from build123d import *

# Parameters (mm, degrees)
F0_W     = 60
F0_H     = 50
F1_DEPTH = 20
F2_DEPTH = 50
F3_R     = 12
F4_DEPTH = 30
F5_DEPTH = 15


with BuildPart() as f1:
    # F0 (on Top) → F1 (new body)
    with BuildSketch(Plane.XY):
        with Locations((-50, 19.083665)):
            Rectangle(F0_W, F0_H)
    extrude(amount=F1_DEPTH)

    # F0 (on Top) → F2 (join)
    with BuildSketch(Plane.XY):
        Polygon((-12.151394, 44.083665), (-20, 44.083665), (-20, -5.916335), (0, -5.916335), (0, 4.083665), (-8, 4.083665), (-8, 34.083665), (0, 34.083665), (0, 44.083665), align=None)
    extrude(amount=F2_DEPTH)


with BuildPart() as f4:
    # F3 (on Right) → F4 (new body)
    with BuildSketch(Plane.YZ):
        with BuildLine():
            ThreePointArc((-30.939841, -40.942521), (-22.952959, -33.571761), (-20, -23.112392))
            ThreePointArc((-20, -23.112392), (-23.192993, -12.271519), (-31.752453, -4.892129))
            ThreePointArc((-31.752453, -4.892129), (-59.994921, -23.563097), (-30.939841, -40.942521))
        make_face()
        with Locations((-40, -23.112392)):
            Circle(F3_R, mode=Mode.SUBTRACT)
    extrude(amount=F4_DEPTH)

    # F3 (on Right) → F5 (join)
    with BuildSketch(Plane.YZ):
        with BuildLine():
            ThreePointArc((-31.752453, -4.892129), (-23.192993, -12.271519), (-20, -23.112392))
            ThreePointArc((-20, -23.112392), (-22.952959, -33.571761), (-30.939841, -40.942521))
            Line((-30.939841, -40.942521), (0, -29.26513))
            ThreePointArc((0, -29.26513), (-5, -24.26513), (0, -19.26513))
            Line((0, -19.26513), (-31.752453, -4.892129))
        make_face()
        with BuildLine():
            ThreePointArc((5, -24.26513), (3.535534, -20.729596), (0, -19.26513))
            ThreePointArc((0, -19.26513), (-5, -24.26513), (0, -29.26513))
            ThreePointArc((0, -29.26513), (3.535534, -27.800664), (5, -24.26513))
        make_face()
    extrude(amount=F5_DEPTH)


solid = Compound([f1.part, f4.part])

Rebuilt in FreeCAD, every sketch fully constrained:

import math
import FreeCAD as App
import Part
import Sketcher
Q = App.Units.Quantity

doc = App.newDocument("Part")
body = doc.addObject("PartDesign::Body", "Body")

sketch1 = body.newObject("Sketcher::SketchObject", "Sketch")
sketch1.AttachmentSupport = (doc.getObject("XY_Plane"), [""])
sketch1.MapMode = "FlatFace"
sketch1.addGeometry(Part.LineSegment(App.Vector(-80, 44, 0), App.Vector(-80, -6, 0)), False)
sketch1.addGeometry(Part.LineSegment(App.Vector(-80, -6, 0), App.Vector(-20, -6, 0)), False)
sketch1.addGeometry(Part.LineSegment(App.Vector(-20, -6, 0), App.Vector(-20, 44, 0)), False)
sketch1.addGeometry(Part.LineSegment(App.Vector(-20, 44, 0), App.Vector(-80, 44, 0)), False)
sketch1.addConstraint(Sketcher.Constraint("Coincident", 0, 2, 1, 1))
sketch1.addConstraint(Sketcher.Constraint("Coincident", 1, 2, 2, 1))
sketch1.addConstraint(Sketcher.Constraint("Coincident", 2, 2, 3, 1))
sketch1.addConstraint(Sketcher.Constraint("Coincident", 3, 2, 0, 1))
sketch1.addConstraint(Sketcher.Constraint("Vertical", 0))
sketch1.addConstraint(Sketcher.Constraint("Horizontal", 1))
sketch1.addConstraint(Sketcher.Constraint("Vertical", 2))
sketch1.addConstraint(Sketcher.Constraint("Horizontal", 3))
sketch1.addConstraint(Sketcher.Constraint("DistanceX", 1, 1, 1, 2, Q("60 mm")))
sketch1.addConstraint(Sketcher.Constraint("DistanceY", 0, 2, 0, 1, Q("50 mm")))
sketch1.addConstraint(Sketcher.Constraint("DistanceX", 0, 2, -1, 1, Q("80 mm")))
sketch1.addConstraint(Sketcher.Constraint("DistanceY", 0, 2, -1, 1, Q("5.916335 mm")))
pad1 = body.newObject("PartDesign::Pad", "Pad")
pad1.Profile = sketch1
pad1.Length = 20

sketch2 = body.newObject("Sketcher::SketchObject", "Sketch001")
sketch2.AttachmentSupport = (doc.getObject("XY_Plane"), [""])
sketch2.MapMode = "FlatFace"
sketch2.addGeometry(Part.LineSegment(App.Vector(-20, 44, 0), App.Vector(-20, -6, 0)), False)
sketch2.addGeometry(Part.LineSegment(App.Vector(-20, -6, 0), App.Vector(0, -6, 0)), False)
sketch2.addGeometry(Part.LineSegment(App.Vector(0, -6, 0), App.Vector(0, 4, 0)), False)
sketch2.addGeometry(Part.LineSegment(App.Vector(0, 4, 0), App.Vector(-8, 4, 0)), False)
sketch2.addGeometry(Part.LineSegment(App.Vector(-8, 4, 0), App.Vector(-8, 34, 0)), False)
sketch2.addGeometry(Part.LineSegment(App.Vector(-8, 34, 0), App.Vector(0, 34, 0)), False)
sketch2.addGeometry(Part.LineSegment(App.Vector(0, 34, 0), App.Vector(0, 44, 0)), False)
sketch2.addGeometry(Part.LineSegment(App.Vector(0, 44, 0), App.Vector(-20, 44, 0)), False)
sketch2.addConstraint(Sketcher.Constraint("Coincident", 0, 2, 1, 1))
sketch2.addConstraint(Sketcher.Constraint("Coincident", 1, 2, 2, 1))
sketch2.addConstraint(Sketcher.Constraint("Coincident", 2, 2, 3, 1))
sketch2.addConstraint(Sketcher.Constraint("Coincident", 3, 2, 4, 1))
sketch2.addConstraint(Sketcher.Constraint("Coincident", 4, 2, 5, 1))
sketch2.addConstraint(Sketcher.Constraint("Coincident", 5, 2, 6, 1))
sketch2.addConstraint(Sketcher.Constraint("Coincident", 6, 2, 7, 1))
sketch2.addConstraint(Sketcher.Constraint("Coincident", 7, 2, 0, 1))
sketch2.addConstraint(Sketcher.Constraint("Vertical", 0))
sketch2.addConstraint(Sketcher.Constraint("Horizontal", 1))
sketch2.addConstraint(Sketcher.Constraint("Vertical", 2))
sketch2.addConstraint(Sketcher.Constraint("Horizontal", 3))
sketch2.addConstraint(Sketcher.Constraint("Vertical", 4))
sketch2.addConstraint(Sketcher.Constraint("Horizontal", 5))
sketch2.addConstraint(Sketcher.Constraint("Vertical", 6))
sketch2.addConstraint(Sketcher.Constraint("Horizontal", 7))
sketch2.addConstraint(Sketcher.Constraint("PointOnObject", 1, 2, -2))
sketch2.addConstraint(Sketcher.Constraint("PointOnObject", 5, 2, -2))
sketch2.addConstraint(Sketcher.Constraint("Equal", 2, 6))
sketch2.addConstraint(Sketcher.Constraint("DistanceX", 1, 1, 1, 2, Q("20 mm")))
sketch2.addConstraint(Sketcher.Constraint("DistanceX", 3, 2, 3, 1, Q("8 mm")))
sketch2.addConstraint(Sketcher.Constraint("DistanceY", 0, 2, 0, 1, Q("50 mm")))
sketch2.addConstraint(Sketcher.Constraint("DistanceY", 2, 1, 2, 2, Q("10 mm")))
sketch2.addConstraint(Sketcher.Constraint("DistanceY", 0, 2, -1, 1, Q("5.916335 mm")))
pad2 = body.newObject("PartDesign::Pad", "Pad001")
pad2.Profile = sketch2
pad2.Length = 50
body2 = doc.addObject("PartDesign::Body", "Body001")

sketch3 = body2.newObject("Sketcher::SketchObject", "Sketch002")
sketch3.AttachmentSupport = (doc.getObject("YZ_Plane001"), [""])
sketch3.MapMode = "FlatFace"
sketch3.addGeometry(Part.ArcOfCircle(Part.Circle(App.Vector(-40, -23, 0), App.Vector(0, 0, 1), 20), math.radians(-63), math.radians(0)), False)
sketch3.addGeometry(Part.ArcOfCircle(Part.Circle(App.Vector(-40, -23, 0), App.Vector(0, 0, 1), 20), math.radians(0), math.radians(66)), False)
sketch3.addGeometry(Part.ArcOfCircle(Part.Circle(App.Vector(-40, -23, 0), App.Vector(0, 0, 1), 20), math.radians(66), math.radians(297)), False)
sketch3.addGeometry(Part.Circle(App.Vector(-40, -23, 0), App.Vector(0, 0, 1), 12), False)
sketch3.addConstraint(Sketcher.Constraint("Tangent", 0, 2, 1, 1))
sketch3.addConstraint(Sketcher.Constraint("Tangent", 1, 2, 2, 1))
sketch3.addConstraint(Sketcher.Constraint("Tangent", 2, 2, 0, 1))
sketch3.addConstraint(Sketcher.Constraint("Coincident", 3, 3, 0, 3))
sketch3.addConstraint(Sketcher.Constraint("Horizontal", 3, 3, 0, 2))
sketch3.addConstraint(Sketcher.Constraint("Diameter", 3, Q("24 mm")))
sketch3.addConstraint(Sketcher.Constraint("Radius", 1, Q("20 mm")))
sketch3.addConstraint(Sketcher.Constraint("DistanceX", 1, 3, -1, 1, Q("40 mm")))
sketch3.addConstraint(Sketcher.Constraint("DistanceY", 1, 3, -1, 1, Q("23.112391 mm")))
sketch3.addConstraint(Sketcher.Constraint("DistanceY", 1, 2, -1, 1, Q("4.892129 mm")))
sketch3.addConstraint(Sketcher.Constraint("DistanceX", 2, 2, -1, 1, Q("30.939841 mm")))
pad3 = body2.newObject("PartDesign::Pad", "Pad002")
pad3.Profile = sketch3
pad3.Length = 30

sketch4 = body2.newObject("Sketcher::SketchObject", "Sketch003")
sketch4.AttachmentSupport = (doc.getObject("YZ_Plane001"), [""])
sketch4.MapMode = "FlatFace"
sketch4.addGeometry(Part.ArcOfCircle(Part.Circle(App.Vector(-40, -23.1, 0), App.Vector(0, 0, 1), 20), math.radians(0), math.radians(66)), False)
sketch4.addGeometry(Part.ArcOfCircle(Part.Circle(App.Vector(-40, -23.1, 0), App.Vector(0, 0, 1), 20), math.radians(-63), math.radians(0)), False)
sketch4.addGeometry(Part.LineSegment(App.Vector(-30.9, -40.9, 0), App.Vector(0, -29.3, 0)), False)
sketch4.addGeometry(Part.ArcOfCircle(Part.Circle(App.Vector(0, -24.3, 0), App.Vector(0, 0, 1), 5), math.radians(-90), math.radians(0)), False)
sketch4.addGeometry(Part.ArcOfCircle(Part.Circle(App.Vector(0, -24.3, 0), App.Vector(0, 0, 1), 5), math.radians(0), math.radians(90)), False)
sketch4.addGeometry(Part.LineSegment(App.Vector(0, -19.3, 0), App.Vector(-31.8, -4.9, 0)), False)
sketch4.addConstraint(Sketcher.Constraint("Tangent", 0, 1, 1, 2))
sketch4.addConstraint(Sketcher.Constraint("Coincident", 1, 1, 2, 1))
sketch4.addConstraint(Sketcher.Constraint("Coincident", 2, 2, 3, 1))
sketch4.addConstraint(Sketcher.Constraint("Tangent", 3, 2, 4, 1))
sketch4.addConstraint(Sketcher.Constraint("Coincident", 4, 2, 5, 1))
sketch4.addConstraint(Sketcher.Constraint("Tangent", 5, 2, 0, 2))
sketch4.addConstraint(Sketcher.Constraint("Equal", 3, 4))
sketch4.addConstraint(Sketcher.Constraint("PointOnObject", 3, 3, -2))
sketch4.addConstraint(Sketcher.Constraint("PointOnObject", 2, 2, -2))
sketch4.addConstraint(Sketcher.Constraint("PointOnObject", 4, 2, -2))
sketch4.addConstraint(Sketcher.Constraint("Horizontal", 1, 3, 0, 1))
sketch4.addConstraint(Sketcher.Constraint("Horizontal", 4, 3, 3, 2))
sketch4.addConstraint(Sketcher.Constraint("Radius", 0, Q("20 mm")))
sketch4.addConstraint(Sketcher.Constraint("Radius", 3, Q("5 mm")))
sketch4.addConstraint(Sketcher.Constraint("DistanceX", 0, 3, -1, 1, Q("40 mm")))
sketch4.addConstraint(Sketcher.Constraint("Distance", 5, Q("34.854002 mm")))
sketch4.addConstraint(Sketcher.Constraint("Radius", 1, Q("19.999997 mm")))
sketch4.addConstraint(Sketcher.Constraint("DistanceY", 0, 3, -1, 1, Q("23.112391 mm")))
sketch4.addConstraint(Sketcher.Constraint("DistanceX", 1, 1, -1, 1, Q("30.939841 mm")))
pad4 = body2.newObject("PartDesign::Pad", "Pad003")
pad4.Profile = sketch4
pad4.Length = 15

doc.recompute()
